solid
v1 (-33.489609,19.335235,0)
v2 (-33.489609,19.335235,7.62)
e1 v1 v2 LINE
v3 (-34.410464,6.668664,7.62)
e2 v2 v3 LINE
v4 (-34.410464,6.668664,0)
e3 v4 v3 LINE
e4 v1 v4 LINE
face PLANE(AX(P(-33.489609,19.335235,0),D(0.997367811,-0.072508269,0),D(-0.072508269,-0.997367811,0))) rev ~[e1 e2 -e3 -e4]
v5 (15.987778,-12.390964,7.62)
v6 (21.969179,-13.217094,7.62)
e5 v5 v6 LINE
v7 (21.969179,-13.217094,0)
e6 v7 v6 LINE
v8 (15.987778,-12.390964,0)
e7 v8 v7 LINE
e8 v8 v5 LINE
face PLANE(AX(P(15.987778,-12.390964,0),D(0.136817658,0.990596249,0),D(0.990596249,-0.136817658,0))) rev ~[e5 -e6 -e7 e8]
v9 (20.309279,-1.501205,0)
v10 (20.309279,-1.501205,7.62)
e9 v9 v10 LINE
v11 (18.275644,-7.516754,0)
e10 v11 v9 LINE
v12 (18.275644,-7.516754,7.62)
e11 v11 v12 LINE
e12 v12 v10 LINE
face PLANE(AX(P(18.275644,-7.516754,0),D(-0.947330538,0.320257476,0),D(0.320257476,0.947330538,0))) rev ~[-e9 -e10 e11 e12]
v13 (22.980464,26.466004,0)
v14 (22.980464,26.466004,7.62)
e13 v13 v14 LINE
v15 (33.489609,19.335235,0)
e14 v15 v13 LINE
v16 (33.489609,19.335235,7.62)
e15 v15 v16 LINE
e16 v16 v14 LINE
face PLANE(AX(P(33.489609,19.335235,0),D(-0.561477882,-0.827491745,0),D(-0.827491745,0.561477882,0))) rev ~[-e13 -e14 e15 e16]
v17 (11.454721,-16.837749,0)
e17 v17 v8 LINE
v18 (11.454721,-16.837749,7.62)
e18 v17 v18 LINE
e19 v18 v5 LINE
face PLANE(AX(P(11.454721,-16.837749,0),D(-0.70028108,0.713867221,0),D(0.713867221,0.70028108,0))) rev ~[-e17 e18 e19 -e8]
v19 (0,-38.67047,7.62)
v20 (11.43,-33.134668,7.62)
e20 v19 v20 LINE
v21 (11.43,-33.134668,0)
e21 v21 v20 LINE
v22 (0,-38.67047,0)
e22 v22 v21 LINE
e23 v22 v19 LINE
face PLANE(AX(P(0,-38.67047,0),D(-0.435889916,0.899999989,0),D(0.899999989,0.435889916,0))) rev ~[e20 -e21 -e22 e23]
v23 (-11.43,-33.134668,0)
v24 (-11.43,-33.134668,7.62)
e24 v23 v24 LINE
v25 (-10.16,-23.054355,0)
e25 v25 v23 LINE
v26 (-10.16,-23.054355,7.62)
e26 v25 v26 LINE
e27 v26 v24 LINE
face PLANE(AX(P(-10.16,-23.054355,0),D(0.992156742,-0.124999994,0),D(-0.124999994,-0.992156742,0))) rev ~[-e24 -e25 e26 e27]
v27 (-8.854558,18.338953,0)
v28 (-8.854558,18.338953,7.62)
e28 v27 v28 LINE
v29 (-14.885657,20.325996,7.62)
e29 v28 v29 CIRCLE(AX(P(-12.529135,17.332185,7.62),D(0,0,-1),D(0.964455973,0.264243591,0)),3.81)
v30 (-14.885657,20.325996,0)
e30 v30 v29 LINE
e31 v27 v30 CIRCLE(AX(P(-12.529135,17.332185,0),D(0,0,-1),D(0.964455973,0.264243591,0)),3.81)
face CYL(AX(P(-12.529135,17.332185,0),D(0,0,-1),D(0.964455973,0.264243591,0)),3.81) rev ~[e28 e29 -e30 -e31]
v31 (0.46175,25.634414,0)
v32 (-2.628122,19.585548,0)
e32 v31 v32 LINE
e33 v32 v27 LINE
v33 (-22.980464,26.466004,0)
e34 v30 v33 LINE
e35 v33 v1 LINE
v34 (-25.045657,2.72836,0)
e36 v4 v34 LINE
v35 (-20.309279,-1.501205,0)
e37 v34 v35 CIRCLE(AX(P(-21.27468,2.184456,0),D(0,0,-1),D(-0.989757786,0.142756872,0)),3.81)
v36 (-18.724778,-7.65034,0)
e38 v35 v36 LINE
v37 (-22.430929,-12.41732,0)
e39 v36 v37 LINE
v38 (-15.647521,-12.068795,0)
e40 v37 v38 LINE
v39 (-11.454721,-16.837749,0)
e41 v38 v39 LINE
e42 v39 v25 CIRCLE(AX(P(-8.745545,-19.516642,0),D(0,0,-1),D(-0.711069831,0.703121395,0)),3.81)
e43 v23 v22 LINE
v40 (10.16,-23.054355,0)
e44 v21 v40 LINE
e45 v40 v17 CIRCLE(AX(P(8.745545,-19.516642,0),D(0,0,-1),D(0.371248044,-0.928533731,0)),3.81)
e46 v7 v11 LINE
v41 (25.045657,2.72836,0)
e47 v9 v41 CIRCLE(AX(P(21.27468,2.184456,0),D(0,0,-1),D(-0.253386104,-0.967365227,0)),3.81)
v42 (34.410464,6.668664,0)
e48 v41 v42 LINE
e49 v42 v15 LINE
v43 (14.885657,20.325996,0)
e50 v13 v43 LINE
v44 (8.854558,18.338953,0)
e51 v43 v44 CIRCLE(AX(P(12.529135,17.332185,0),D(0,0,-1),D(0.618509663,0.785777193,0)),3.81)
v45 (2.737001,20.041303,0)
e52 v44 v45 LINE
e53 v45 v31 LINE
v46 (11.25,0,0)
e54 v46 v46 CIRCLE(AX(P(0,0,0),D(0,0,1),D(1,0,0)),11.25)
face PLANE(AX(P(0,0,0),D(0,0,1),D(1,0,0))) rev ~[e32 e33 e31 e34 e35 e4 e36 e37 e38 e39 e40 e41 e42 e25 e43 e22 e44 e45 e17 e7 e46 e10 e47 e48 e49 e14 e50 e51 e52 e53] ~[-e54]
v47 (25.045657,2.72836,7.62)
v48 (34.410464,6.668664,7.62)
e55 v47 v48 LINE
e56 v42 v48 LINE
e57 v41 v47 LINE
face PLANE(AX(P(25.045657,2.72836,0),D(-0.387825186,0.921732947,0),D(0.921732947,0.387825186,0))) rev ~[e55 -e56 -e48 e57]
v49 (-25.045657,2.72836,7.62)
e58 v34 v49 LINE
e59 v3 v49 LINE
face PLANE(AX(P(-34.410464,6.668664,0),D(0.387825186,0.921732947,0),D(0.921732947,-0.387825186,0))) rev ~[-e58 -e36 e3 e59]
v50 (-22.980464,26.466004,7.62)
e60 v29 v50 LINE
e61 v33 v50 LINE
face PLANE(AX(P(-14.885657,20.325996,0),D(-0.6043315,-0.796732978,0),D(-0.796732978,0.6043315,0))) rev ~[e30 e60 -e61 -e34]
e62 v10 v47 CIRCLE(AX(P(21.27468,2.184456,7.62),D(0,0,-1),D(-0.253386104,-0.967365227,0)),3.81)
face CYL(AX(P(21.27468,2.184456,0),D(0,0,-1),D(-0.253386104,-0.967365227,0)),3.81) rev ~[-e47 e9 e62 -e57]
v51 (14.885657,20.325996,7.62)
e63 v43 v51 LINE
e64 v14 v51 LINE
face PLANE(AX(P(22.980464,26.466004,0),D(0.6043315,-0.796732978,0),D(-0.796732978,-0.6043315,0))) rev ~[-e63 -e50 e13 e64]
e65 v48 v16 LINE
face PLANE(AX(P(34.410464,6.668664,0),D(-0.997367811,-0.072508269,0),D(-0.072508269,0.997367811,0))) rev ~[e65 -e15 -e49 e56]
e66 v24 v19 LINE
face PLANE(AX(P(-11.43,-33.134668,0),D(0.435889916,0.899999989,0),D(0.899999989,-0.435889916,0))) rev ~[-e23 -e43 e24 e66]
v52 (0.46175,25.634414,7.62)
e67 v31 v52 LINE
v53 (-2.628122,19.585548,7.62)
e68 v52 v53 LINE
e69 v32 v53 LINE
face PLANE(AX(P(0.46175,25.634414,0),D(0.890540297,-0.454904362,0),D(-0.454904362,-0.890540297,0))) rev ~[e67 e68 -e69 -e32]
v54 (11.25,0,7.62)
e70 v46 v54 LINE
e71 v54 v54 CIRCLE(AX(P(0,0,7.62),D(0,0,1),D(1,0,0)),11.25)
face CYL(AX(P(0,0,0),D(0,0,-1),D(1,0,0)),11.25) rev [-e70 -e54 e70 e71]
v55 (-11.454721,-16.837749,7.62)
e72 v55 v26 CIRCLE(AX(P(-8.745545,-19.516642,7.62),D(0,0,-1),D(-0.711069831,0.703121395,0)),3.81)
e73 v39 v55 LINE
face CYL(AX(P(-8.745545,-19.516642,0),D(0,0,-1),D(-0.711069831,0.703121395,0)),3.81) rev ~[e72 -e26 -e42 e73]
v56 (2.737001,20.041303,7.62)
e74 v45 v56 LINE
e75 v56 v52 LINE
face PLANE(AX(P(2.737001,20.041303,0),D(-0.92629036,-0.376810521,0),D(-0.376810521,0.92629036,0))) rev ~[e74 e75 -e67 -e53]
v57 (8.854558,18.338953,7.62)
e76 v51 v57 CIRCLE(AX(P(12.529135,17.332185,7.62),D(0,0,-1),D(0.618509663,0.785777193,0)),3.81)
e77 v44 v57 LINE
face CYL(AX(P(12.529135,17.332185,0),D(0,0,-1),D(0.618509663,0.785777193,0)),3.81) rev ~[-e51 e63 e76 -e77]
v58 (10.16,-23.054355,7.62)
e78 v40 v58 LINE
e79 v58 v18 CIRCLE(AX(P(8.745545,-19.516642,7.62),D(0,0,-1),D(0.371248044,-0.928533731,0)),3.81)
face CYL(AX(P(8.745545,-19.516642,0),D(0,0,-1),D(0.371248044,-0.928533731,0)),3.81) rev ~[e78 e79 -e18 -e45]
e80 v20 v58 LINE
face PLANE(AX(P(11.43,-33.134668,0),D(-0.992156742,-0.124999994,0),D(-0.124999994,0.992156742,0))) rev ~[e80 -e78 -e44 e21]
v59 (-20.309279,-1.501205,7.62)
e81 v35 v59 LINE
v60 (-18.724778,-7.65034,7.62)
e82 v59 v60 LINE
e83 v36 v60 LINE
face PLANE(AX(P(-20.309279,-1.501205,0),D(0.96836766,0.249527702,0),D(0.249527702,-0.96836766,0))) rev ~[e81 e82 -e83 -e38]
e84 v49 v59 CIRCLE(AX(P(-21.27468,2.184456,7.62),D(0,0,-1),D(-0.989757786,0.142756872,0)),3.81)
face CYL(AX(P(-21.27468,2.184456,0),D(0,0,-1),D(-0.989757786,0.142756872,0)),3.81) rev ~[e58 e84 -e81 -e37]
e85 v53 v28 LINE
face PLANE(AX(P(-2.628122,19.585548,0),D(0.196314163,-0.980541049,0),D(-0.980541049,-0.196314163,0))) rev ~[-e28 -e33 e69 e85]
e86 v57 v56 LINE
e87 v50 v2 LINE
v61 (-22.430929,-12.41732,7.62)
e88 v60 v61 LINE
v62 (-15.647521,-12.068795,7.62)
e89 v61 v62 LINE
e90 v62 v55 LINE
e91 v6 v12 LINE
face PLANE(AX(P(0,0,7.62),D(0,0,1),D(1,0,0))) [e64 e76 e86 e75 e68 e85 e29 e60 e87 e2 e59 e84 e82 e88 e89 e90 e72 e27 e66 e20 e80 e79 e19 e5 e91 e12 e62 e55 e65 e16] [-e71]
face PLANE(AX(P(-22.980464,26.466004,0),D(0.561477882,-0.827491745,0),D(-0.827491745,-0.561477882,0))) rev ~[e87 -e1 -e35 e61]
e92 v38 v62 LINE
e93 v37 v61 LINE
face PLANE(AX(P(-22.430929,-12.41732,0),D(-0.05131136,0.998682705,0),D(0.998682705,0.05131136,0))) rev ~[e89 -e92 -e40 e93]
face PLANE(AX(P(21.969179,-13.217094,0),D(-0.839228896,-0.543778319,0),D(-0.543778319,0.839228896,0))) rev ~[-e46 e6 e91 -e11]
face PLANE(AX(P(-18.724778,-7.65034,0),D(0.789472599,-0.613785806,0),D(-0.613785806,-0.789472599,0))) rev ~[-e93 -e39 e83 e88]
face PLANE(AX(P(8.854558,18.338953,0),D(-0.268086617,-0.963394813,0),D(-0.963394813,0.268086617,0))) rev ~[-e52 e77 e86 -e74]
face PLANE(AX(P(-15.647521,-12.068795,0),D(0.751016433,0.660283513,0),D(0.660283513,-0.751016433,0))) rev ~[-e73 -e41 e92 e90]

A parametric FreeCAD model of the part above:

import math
import FreeCAD as App
import Part
import Sketcher
Q = App.Units.Quantity

doc = App.newDocument("Part")
body = doc.addObject("PartDesign::Body", "Body")

sketch1 = body.newObject("Sketcher::SketchObject", "Sketch")
sketch1.AttachmentSupport = (doc.getObject("XY_Plane"), [""])
sketch1.MapMode = "FlatFace"
sketch1.addGeometry([
    Part.ArcOfCircle(Part.Circle(App.Vector(-8.7, -19.5, 0), App.Vector(0, 0, 1), 3.8), math.radians(-112), math.radians(135)),
    Part.LineSegment(App.Vector(-10.2, -23.1, 0), App.Vector(-11.4, -33.1, 0)),
    Part.LineSegment(App.Vector(-11.4, -33.1, 0), App.Vector(0, -38.7, 0)),
    Part.LineSegment(App.Vector(0, -38.7, 0), App.Vector(11.4, -33.1, 0)),
    Part.LineSegment(App.Vector(11.4, -33.1, 0), App.Vector(10.2, -23.1, 0)),
    Part.ArcOfCircle(Part.Circle(App.Vector(8.7, -19.5, 0), App.Vector(0, 0, 1), 3.8), math.radians(45), math.radians(292)),
    Part.LineSegment(App.Vector(11.5, -16.8, 0), App.Vector(16, -12.4, 0)),
    Part.LineSegment(App.Vector(16, -12.4, 0), App.Vector(22, -13.2, 0)),
    Part.LineSegment(App.Vector(22, -13.2, 0), App.Vector(18.3, -7.5, 0)),
    Part.LineSegment(App.Vector(18.3, -7.5, 0), App.Vector(20.3, -1.5, 0)),
    Part.ArcOfCircle(Part.Circle(App.Vector(21.3, 2.2, 0), App.Vector(0, 0, 1), 3.8), math.radians(8), math.radians(255)),
    Part.LineSegment(App.Vector(25, 2.7, 0), App.Vector(34.4, 6.7, 0)),
    Part.LineSegment(App.Vector(34.4, 6.7, 0), App.Vector(33.5, 19.3, 0)),
    Part.LineSegment(App.Vector(33.5, 19.3, 0), App.Vector(23, 26.5, 0)),
    Part.LineSegment(App.Vector(23, 26.5, 0), App.Vector(14.9, 20.3, 0)),
    Part.ArcOfCircle(Part.Circle(App.Vector(12.5, 17.3, 0), App.Vector(0, 0, 1), 3.8), math.radians(165), math.radians(412)),
    Part.LineSegment(App.Vector(8.9, 18.3, 0), App.Vector(2.7, 20, 0)),
    Part.LineSegment(App.Vector(2.7, 20, 0), App.Vector(0.5, 25.6, 0)),
    Part.LineSegment(App.Vector(0.5, 25.6, 0), App.Vector(-2.6, 19.6, 0)),
    Part.LineSegment(App.Vector(-2.6, 19.6, 0), App.Vector(-8.9, 18.3, 0)),
    Part.ArcOfCircle(Part.Circle(App.Vector(-12.5, 17.3, 0), App.Vector(0, 0, 1), 3.8), math.radians(128), math.radians(375)),
    Part.LineSegment(App.Vector(-14.9, 20.3, 0), App.Vector(-23, 26.5, 0)),
    Part.LineSegment(App.Vector(-23, 26.5, 0), App.Vector(-33.5, 19.3, 0)),
    Part.LineSegment(App.Vector(-33.5, 19.3, 0), App.Vector(-34.4, 6.7, 0)),
    Part.LineSegment(App.Vector(-34.4, 6.7, 0), App.Vector(-25, 2.7, 0)),
    Part.ArcOfCircle(Part.Circle(App.Vector(-21.3, 2.2, 0), App.Vector(0, 0, 1), 3.8), math.radians(-75), math.radians(172)),
    Part.LineSegment(App.Vector(-20.3, -1.5, 0), App.Vector(-18.7, -7.7, 0)),
    Part.LineSegment(App.Vector(-18.7, -7.7, 0), App.Vector(-22.4, -12.4, 0)),
    Part.LineSegment(App.Vector(-22.4, -12.4, 0), App.Vector(-15.6, -12.1, 0)),
    Part.LineSegment(App.Vector(-15.6, -12.1, 0), App.Vector(-11.5, -16.8, 0)),
    Part.Circle(App.Vector(0, 0, 0), App.Vector(0, 0, 1), 11.2),
], False)
sketch1.addConstraint([
    Sketcher.Constraint("Coincident", 0, 1, 1, 1),
    Sketcher.Constraint("Coincident", 1, 2, 2, 1),
    Sketcher.Constraint("Coincident", 2, 2, 3, 1),
    Sketcher.Constraint("Coincident", 3, 2, 4, 1),
    Sketcher.Constraint("Coincident", 4, 2, 5, 2),
    Sketcher.Constraint("Coincident", 5, 1, 6, 1),
    Sketcher.Constraint("Coincident", 6, 2, 7, 1),
    Sketcher.Constraint("Coincident", 7, 2, 8, 1),
    Sketcher.Constraint("Coincident", 8, 2, 9, 1),
    Sketcher.Constraint("Coincident", 9, 2, 10, 2),
    Sketcher.Constraint("Coincident", 10, 1, 11, 1),
    Sketcher.Constraint("Coincident", 11, 2, 12, 1),
    Sketcher.Constraint("Coincident", 12, 2, 13, 1),
    Sketcher.Constraint("Coincident", 13, 2, 14, 1),
    Sketcher.Constraint("Coincident", 14, 2, 15, 2),
    Sketcher.Constraint("Coincident", 15, 1, 16, 1),
    Sketcher.Constraint("Coincident", 16, 2, 17, 1),
    Sketcher.Constraint("Coincident", 17, 2, 18, 1),
    Sketcher.Constraint("Coincident", 18, 2, 19, 1),
    Sketcher.Constraint("Coincident", 19, 2, 20, 2),
    Sketcher.Constraint("Coincident", 20, 1, 21, 1),
    Sketcher.Constraint("Coincident", 21, 2, 22, 1),
    Sketcher.Constraint("Coincident", 22, 2, 23, 1),
    Sketcher.Constraint("Coincident", 23, 2, 24, 1),
    Sketcher.Constraint("Coincident", 24, 2, 25, 2),
    Sketcher.Constraint("Coincident", 25, 1, 26, 1),
    Sketcher.Constraint("Coincident", 26, 2, 27, 1),
    Sketcher.Constraint("Coincident", 27, 2, 28, 1),
    Sketcher.Constraint("Coincident", 28, 2, 29, 1),
    Sketcher.Constraint("Coincident", 29, 2, 0, 2),
    Sketcher.Constraint("Coincident", 30, 3, -1, 1),
    Sketcher.Constraint("Equal", 0, 5),
    Sketcher.Constraint("Equal", 5, 10),
    Sketcher.Constraint("Equal", 10, 15),
    Sketcher.Constraint("Equal", 15, 20),
    Sketcher.Constraint("Equal", 20, 25),
    Sketcher.Constraint("Symmetric", 0, 3, 5, 3, -2),
    Sketcher.Constraint("Symmetric", 15, 3, 20, 3, -2),
    Sketcher.Constraint("Symmetric", 10, 3, 25, 3, -2),
    Sketcher.Constraint("Symmetric", 1, 2, 3, 2, -2),
    Sketcher.Constraint("Symmetric", 13, 2, 21, 2, -2),
    Sketcher.Constraint("Symmetric", 12, 2, 22, 2, -2),
    Sketcher.Constraint("Symmetric", 11, 2, 23, 2, -2),
    Sketcher.Constraint("PointOnObject", 2, 2, -2),
    Sketcher.Constraint("Horizontal", 0, 1, 4, 2),
    Sketcher.Constraint("Horizontal", 15, 1, 19, 2),
    Sketcher.Constraint("Horizontal", 14, 2, 20, 1),
    Sketcher.Constraint("Horizontal", 10, 1, 24, 2),
    Sketcher.Constraint("Horizontal", 9, 2, 25, 1),
    Sketcher.Constraint("Horizontal", 5, 1, 29, 2),
    Sketcher.Constraint("Equal", 6, 9),
    Sketcher.Constraint("Equal", 4, 11),
    Sketcher.Constraint("Equal", 3, 12),
    Sketcher.Constraint("Equal", 12, 13),
    Sketcher.Constraint("Equal", 11, 14),
    Sketcher.Constraint("Equal", 9, 16),
    Sketcher.Constraint("Equal", 7, 17),
    Sketcher.Constraint("Equal", 8, 18),
    Sketcher.Constraint("Equal", 16, 19),
    Sketcher.Constraint("Equal", 19, 26),
    Sketcher.Constraint("Equal", 17, 27),
    Sketcher.Constraint("Equal", 18, 28),
    Sketcher.Constraint("Equal", 26, 29),
    Sketcher.Constraint("Radius", 0, Q("0.15 in")),
    Sketcher.Constraint("Distance", 1, Q("0.4 in")),
    Sketcher.Constraint("Distance", 2, Q("0.5 in")),
    Sketcher.Constraint("DistanceX", 0, 1, -1, 1, Q("0.4 in")),
    Sketcher.Constraint("DistanceX", 1, 2, 3, 2, Q("0.9 in")),
    Sketcher.Constraint("DistanceX", 14, 2, 10, 1, Q("0.4 in")),
    Sketcher.Constraint("Distance", 6, Q("0.25 in")),
    Sketcher.Constraint("Diameter", 30, Q("22.5 mm")),
    Sketcher.Constraint("DistanceX", 13, 2, 11, 2, Q("0.45 in")),
    Sketcher.Constraint("DistanceX", -1, 1, 16, 2, Q("2.737001 mm")),
    Sketcher.Constraint("DistanceX", 6, 2, 7, 2, Q("5.981401 mm")),
    Sketcher.Constraint("DistanceX", 10, 3, 7, 2, Q("0.694499 mm")),
    Sketcher.Constraint("DistanceX", 5, 3, 8, 2, Q("9.530099 mm")),
    Sketcher.Constraint("DistanceX", 9, 2, 10, 3, Q("0.965401 mm")),
    Sketcher.Constraint("DistanceX", 15, 1, 14, 2, Q("6.031099 mm")),
    Sketcher.Constraint("DistanceX", 25, 1, 26, 2, Q("1.584501 mm")),
    Sketcher.Constraint("DistanceY", 26, 2, 24, 2, Q("10.3787 mm")),
    Sketcher.Constraint("DistanceY", 0, 3, 26, 2, Q("11.866302 mm")),
    Sketcher.Constraint("DistanceX", 28, 2, 29, 2, Q("4.1928 mm")),
    Sketcher.Constraint("DistanceY", 0, 3, -1, 1, Q("19.516642 mm")),
    Sketcher.Constraint("DistanceX", -1, 1, 10, 3, Q("21.27468 mm")),
    Sketcher.Constraint("DistanceY", 2, 2, -1, 1, Q("38.67047 mm")),
    Sketcher.Constraint("DistanceX", -1, 1, 5, 1, Q("11.454721 mm")),
    Sketcher.Constraint("DistanceX", -1, 1, 12, 2, Q("33.489609 mm")),
    Sketcher.Constraint("DistanceX", -1, 1, 17, 2, Q("0.46175 mm")),
    Sketcher.Constraint("DistanceX", 18, 2, -1, 1, Q("2.628122 mm")),
    Sketcher.Constraint("DistanceY", 10, 3, 15, 3, Q("15.147729 mm")),
    Sketcher.Constraint("DistanceX", 5, 3, 15, 3, Q("3.78359 mm")),
])
pad1 = body.newObject("PartDesign::Pad", "Pad")
pad1.Profile = sketch1
pad1.Length = Q("0.3 in")

doc.recompute()
